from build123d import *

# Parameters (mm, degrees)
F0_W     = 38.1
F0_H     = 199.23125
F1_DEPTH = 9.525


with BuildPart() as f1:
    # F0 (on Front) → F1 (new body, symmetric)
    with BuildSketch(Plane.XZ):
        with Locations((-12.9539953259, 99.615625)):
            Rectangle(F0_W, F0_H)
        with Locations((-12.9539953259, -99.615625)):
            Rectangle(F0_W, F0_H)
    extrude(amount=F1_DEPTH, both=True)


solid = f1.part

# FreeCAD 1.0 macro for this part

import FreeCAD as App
import Part
import Sketcher
from FreeCAD import Vector
Q = App.Units.Quantity

doc = App.newDocument("Part")
body = doc.addObject("PartDesign::Body", "Body")

# Sketch on XZ plane
sketch1 = body.newObject("Sketcher::SketchObject", "Sketch")
sketch1.AttachmentSupport = (doc.getObject("XZ_Plane"), [""])
sketch1.MapMode = "FlatFace"
sketch1.addGeometry([
    Part.LineSegment(Vector(-32, 199, 0), Vector(-32, -199, 0)),
    Part.LineSegment(Vector(-32, -199, 0), Vector(6, -199, 0)),
    Part.LineSegment(Vector(6, -199, 0), Vector(6, 199, 0)),
    Part.LineSegment(Vector(6, 199, 0), Vector(-32, 199, 0)),
], False)
sketch1.addConstraint([
    Sketcher.Constraint("Coincident", 0, 2, 1, 1),
    Sketcher.Constraint("Coincident", 1, 2, 2, 1),
    Sketcher.Constraint("Coincident", 2, 2, 3, 1),
    Sketcher.Constraint("Coincident", 3, 2, 0, 1),
    Sketcher.Constraint("Vertical", 0),
    Sketcher.Constraint("Horizontal", 1),
    Sketcher.Constraint("Vertical", 2),
    Sketcher.Constraint("Horizontal", 3),
    Sketcher.Constraint("DistanceX", 1, 1, 1, 2, Q("1.5 in")),
    Sketcher.Constraint("DistanceY", 0, 2, 0, 1, Q("15.6875 in")),
    Sketcher.Constraint("DistanceX", 0, 2, -1, 1, Q("1.2599998 in")),
    Sketcher.Constraint("DistanceY", 0, 2, -1, 1, Q("7.84375 in")),
])
pad1 = body.newObject("PartDesign::Pad", "Pad")
pad1.Profile = sketch1
pad1.Length = Q("0.75 in")
pad1.Midplane = True

doc.recompute()
